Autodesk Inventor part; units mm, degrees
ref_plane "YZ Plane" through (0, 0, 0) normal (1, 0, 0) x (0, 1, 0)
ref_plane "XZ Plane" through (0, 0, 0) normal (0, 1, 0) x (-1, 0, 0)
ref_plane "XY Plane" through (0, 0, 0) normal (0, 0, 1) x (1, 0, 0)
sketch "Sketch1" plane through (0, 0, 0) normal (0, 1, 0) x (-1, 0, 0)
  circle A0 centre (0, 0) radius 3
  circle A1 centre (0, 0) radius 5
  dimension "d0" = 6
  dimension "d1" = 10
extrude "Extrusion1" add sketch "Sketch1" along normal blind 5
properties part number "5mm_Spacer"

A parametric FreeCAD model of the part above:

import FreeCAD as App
import Part
import Sketcher
from FreeCAD import Vector

doc = App.newDocument("Part")
body = doc.addObject("PartDesign::Body", "Body")

# Sketch on XZ plane
sketch1 = doc.addObject("Sketcher::SketchObject", "Sketch")
body.addObject(sketch1)
sketch1.AttachmentSupport = (doc.XZ_Plane, [""])
sketch1.MapMode = "FlatFace"
sketch1.addGeometry([
    Part.Circle(Vector(0, 0, 0), Vector(0, 0, 1), 5),
    Part.Circle(Vector(0, 0, 0), Vector(0, 0, 1), 3),
], False)
sketch1.addConstraint([
    Sketcher.Constraint("Coincident", 0, 3, -1, 1),
    Sketcher.Constraint("Coincident", 1, 3, -1, 1),
    Sketcher.Constraint("Diameter", 0, 10.0),
    Sketcher.Constraint("Diameter", 1, 6.0),
])
pad1 = doc.addObject("PartDesign::Pad", "Pad")
body.addObject(pad1)
pad1.Profile = sketch1
pad1.Length = 5
pad1.Reversed = True

doc.recompute()
